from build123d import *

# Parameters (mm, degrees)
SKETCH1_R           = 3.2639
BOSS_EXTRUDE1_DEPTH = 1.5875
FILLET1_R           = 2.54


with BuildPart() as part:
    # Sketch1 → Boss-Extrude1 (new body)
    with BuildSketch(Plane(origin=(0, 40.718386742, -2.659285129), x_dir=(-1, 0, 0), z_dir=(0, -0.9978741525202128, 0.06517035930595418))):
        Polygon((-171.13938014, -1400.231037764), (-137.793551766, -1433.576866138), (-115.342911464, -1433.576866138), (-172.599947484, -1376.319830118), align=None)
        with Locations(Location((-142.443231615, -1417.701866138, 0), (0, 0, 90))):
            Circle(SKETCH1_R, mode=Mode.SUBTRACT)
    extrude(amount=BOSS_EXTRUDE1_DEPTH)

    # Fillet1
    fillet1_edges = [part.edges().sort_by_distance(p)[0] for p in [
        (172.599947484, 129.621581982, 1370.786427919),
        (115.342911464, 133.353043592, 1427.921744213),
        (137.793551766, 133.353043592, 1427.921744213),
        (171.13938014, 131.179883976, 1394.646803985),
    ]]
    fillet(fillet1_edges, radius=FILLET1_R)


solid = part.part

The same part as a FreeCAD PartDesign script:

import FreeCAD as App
import Part
import Sketcher
from FreeCAD import Vector
Q = App.Units.Quantity


def edges_at(feature, points):
    """Names of the edges that pass closest to the given points."""
    edges = feature.Shape.Edges
    near = lambda p: min(range(len(edges)), key=lambda i: edges[i].distToShape(Part.Vertex(*p))[0])
    return sorted({f"Edge{near(p) + 1}" for p in points})


def add_polygon(sketch, points):
    """Adds a closed chain of lines whose ends are joined by coincident constraints."""
    first, n = sketch.GeometryCount, len(points)
    for a, b in zip(points, points[1:] + points[:1]):
        sketch.addGeometry(Part.LineSegment(App.Vector(*a, 0), App.Vector(*b, 0)), False)
    for i in range(n):
        sketch.addConstraint(Sketcher.Constraint("Coincident", first + i, 2, first + (i + 1) % n, 1))

doc = App.newDocument("Part")
body = doc.addObject("PartDesign::Body", "Body")

# Sketch on an angled plane
sketch1 = body.newObject("Sketcher::SketchObject", "Sketch")
sketch1.Placement = App.Placement(Vector(0, 40.718387, -2.659285), App.Rotation(Vector(-1, 0, 0), Vector(0, -0.065170359, -0.997874153), Vector(0, -0.997874153, 0.065170359), "ZXY"))
add_polygon(sketch1, [(-171.13938, -1400.231039), (-137.793552, -1433.576867), (-115.342911, -1433.576867), (-172.599947, -1376.319831)])  # lines 0-3
sketch1.addGeometry(Part.Circle(Vector(-142.443232, -1417.701867, 0), Vector(0, 0, 1), 3.2639), False)  # 4
sketch1.addConstraint(Sketcher.Constraint("Horizontal", 1))
sketch1.addConstraint(Sketcher.Constraint("Parallel", 0, 2))
sketch1.addConstraint(Sketcher.Constraint("Diameter", 4, Q("0.257 in")))
sketch1.addConstraint(Sketcher.Constraint("Angle", 0, Q("-45 deg")))
sketch1.addConstraint(Sketcher.Constraint("DistanceY", 0, 2, 4, 3, Q("0.625 in")))
sketch1.addConstraint(Sketcher.Constraint("DistanceX", 1, 1, 1, 2, 22.45064))
sketch1.addConstraint(Sketcher.Constraint("DistanceX", 4, 3, -1, 1, 142.443232))
sketch1.addConstraint(Sketcher.Constraint("DistanceX", 0, 2, -1, 1, 137.793552))
sketch1.addConstraint(Sketcher.Constraint("DistanceY", 2, 2, -1, 1, 1376.319831))
sketch1.addConstraint(Sketcher.Constraint("DistanceX", 3, 2, -1, 1, 171.13938))
sketch1.addConstraint(Sketcher.Constraint("DistanceY", 3, 2, -1, 1, 1400.231039))
pad1 = body.newObject("PartDesign::Pad", "Pad")
pad1.Profile = sketch1
pad1.Length = Q("0.0625 in")
doc.recompute()

fillet = body.newObject("PartDesign::Fillet", "Fillet")
fillet.Base = (pad1, edges_at(pad1, [
    (172.6, 129.622, 1370.786),
    (115.343, 133.353, 1427.922),
    (137.794, 133.353, 1427.922),
    (171.139, 131.18, 1394.647),
]))
fillet.Radius = Q("0.1 in")

doc.recompute()
